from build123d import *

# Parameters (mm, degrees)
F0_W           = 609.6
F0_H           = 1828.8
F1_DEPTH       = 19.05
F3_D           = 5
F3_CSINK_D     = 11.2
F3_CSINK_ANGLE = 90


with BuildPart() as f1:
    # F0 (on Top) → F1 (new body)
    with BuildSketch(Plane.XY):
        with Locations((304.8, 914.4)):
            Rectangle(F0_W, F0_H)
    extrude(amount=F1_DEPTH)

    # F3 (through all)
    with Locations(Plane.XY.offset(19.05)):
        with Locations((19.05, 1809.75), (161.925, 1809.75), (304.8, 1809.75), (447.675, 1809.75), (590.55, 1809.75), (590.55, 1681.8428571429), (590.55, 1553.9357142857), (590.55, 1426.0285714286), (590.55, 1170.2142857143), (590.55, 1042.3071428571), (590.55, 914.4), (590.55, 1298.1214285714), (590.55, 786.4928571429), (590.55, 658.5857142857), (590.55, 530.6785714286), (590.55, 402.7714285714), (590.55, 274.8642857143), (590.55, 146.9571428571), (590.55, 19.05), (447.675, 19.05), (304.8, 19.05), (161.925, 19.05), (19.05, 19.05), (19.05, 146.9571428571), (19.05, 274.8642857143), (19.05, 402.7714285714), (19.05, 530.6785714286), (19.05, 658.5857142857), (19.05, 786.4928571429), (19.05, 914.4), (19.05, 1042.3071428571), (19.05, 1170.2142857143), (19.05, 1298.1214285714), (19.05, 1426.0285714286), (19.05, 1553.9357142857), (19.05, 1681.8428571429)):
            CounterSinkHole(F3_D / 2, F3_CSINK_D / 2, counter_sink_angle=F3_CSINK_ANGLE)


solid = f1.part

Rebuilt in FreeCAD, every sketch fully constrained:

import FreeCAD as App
import Part
import Sketcher
from FreeCAD import Vector
Q = App.Units.Quantity

doc = App.newDocument("Part")
params = doc.addObject("Spreadsheet::Sheet", "Params")
for row, (alias, value) in enumerate([
    ("sketch1_width", "24 in"),
    ("sketch1_height", "72 in"),
    ("pad1_length", "0.75 in"),
    ("hole_diameter", "5 mm"),
    ("hole_csink_diameter", "11.2 mm"),
], start=1):
    params.set(f"A{row}", alias)
    params.set(f"B{row}", "=" + value)
    params.setAlias(f"B{row}", alias)

body = doc.addObject("PartDesign::Body", "Body")

sketch1 = doc.addObject("Sketcher::SketchObject", "Sketch")
body.addObject(sketch1)
sketch1.AttachmentSupport = (doc.XY_Plane, [""])
sketch1.MapMode = "FlatFace"
sketch1.addGeometry(Part.LineSegment(Vector(0, 1829, 0), Vector(0, 0, 0)), False)
sketch1.addGeometry(Part.LineSegment(Vector(0, 0, 0), Vector(610, 0, 0)), False)
sketch1.addGeometry(Part.LineSegment(Vector(610, 0, 0), Vector(610, 1829, 0)), False)
sketch1.addGeometry(Part.LineSegment(Vector(610, 1829, 0), Vector(0, 1829, 0)), False)
sketch1.addConstraint(Sketcher.Constraint("Coincident", 0, 2, 1, 1))
sketch1.addConstraint(Sketcher.Constraint("Coincident", 1, 2, 2, 1))
sketch1.addConstraint(Sketcher.Constraint("Coincident", 2, 2, 3, 1))
sketch1.addConstraint(Sketcher.Constraint("Coincident", 3, 2, 0, 1))
sketch1.addConstraint(Sketcher.Constraint("Vertical", 0))
sketch1.addConstraint(Sketcher.Constraint("Horizontal", 1))
sketch1.addConstraint(Sketcher.Constraint("Vertical", 2))
sketch1.addConstraint(Sketcher.Constraint("Horizontal", 3))
sketch1.addConstraint(Sketcher.Constraint("Coincident", 0, 2, -1, 1))
sketch1.addConstraint(Sketcher.Constraint("DistanceX", 1, 1, 1, 2, Q("24 in")))
sketch1.addConstraint(Sketcher.Constraint("DistanceY", 0, 2, 0, 1, Q("72 in")))
sketch1.setExpression("Constraints[9]", "Params.sketch1_width")
sketch1.setExpression("Constraints[10]", "Params.sketch1_height")
pad1 = doc.addObject("PartDesign::Pad", "Pad")
body.addObject(pad1)
pad1.Profile = sketch1
pad1.setExpression("Length", "Params.pad1_length")

sketch2 = doc.addObject("Sketcher::SketchObject", "Sketch001")
body.addObject(sketch2)
sketch2.AttachmentSupport = (doc.XY_Plane, [""])
sketch2.MapMode = "FlatFace"
sketch2.AttachmentOffset = App.Placement(Vector(0, 0, 0.75 * 25.4), App.Rotation())
sketch2.addGeometry(Part.Circle(Vector(19.1, 1809.8, 0), Vector(0, 0, 1), 2.5), False)
sketch2.addGeometry(Part.Circle(Vector(161.9, 1809.8, 0), Vector(0, 0, 1), 2.5), False)
sketch2.addGeometry(Part.Circle(Vector(304.8, 1809.8, 0), Vector(0, 0, 1), 2.5), False)
sketch2.addGeometry(Part.Circle(Vector(447.7, 1809.8, 0), Vector(0, 0, 1), 2.5), False)
sketch2.addGeometry(Part.Circle(Vector(590.5, 1809.8, 0), Vector(0, 0, 1), 2.5), False)
sketch2.addGeometry(Part.Circle(Vector(590.5, 1681.8, 0), Vector(0, 0, 1), 2.5), False)
sketch2.addGeometry(Part.Circle(Vector(590.5, 1553.9, 0), Vector(0, 0, 1), 2.5), False)
sketch2.addGeometry(Part.Circle(Vector(590.5, 1426, 0), Vector(0, 0, 1), 2.5), False)
sketch2.addGeometry(Part.Circle(Vector(590.5, 1170.2, 0), Vector(0, 0, 1), 2.5), False)
sketch2.addGeometry(Part.Circle(Vector(590.5, 1042.3, 0), Vector(0, 0, 1), 2.5), False)
sketch2.addGeometry(Part.Circle(Vector(590.5, 914.4, 0), Vector(0, 0, 1), 2.5), False)
sketch2.addGeometry(Part.Circle(Vector(590.5, 1298.1, 0), Vector(0, 0, 1), 2.5), False)
sketch2.addGeometry(Part.Circle(Vector(590.5, 786.5, 0), Vector(0, 0, 1), 2.5), False)
sketch2.addGeometry(Part.Circle(Vector(590.5, 658.6, 0), Vector(0, 0, 1), 2.5), False)
sketch2.addGeometry(Part.Circle(Vector(590.5, 530.7, 0), Vector(0, 0, 1), 2.5), False)
sketch2.addGeometry(Part.Circle(Vector(590.5, 402.8, 0), Vector(0, 0, 1), 2.5), False)
sketch2.addGeometry(Part.Circle(Vector(590.5, 274.9, 0), Vector(0, 0, 1), 2.5), False)
sketch2.addGeometry(Part.Circle(Vector(590.5, 147, 0), Vector(0, 0, 1), 2.5), False)
sketch2.addGeometry(Part.Circle(Vector(590.5, 19.1, 0), Vector(0, 0, 1), 2.5), False)
sketch2.addGeometry(Part.Circle(Vector(447.7, 19.1, 0), Vector(0, 0, 1), 2.5), False)
sketch2.addGeometry(Part.Circle(Vector(304.8, 19.1, 0), Vector(0, 0, 1), 2.5), False)
sketch2.addGeometry(Part.Circle(Vector(161.9, 19.1, 0), Vector(0, 0, 1), 2.5), False)
sketch2.addGeometry(Part.Circle(Vector(19.1, 19.1, 0), Vector(0, 0, 1), 2.5), False)
sketch2.addGeometry(Part.Circle(Vector(19.1, 147, 0), Vector(0, 0, 1), 2.5), False)
sketch2.addGeometry(Part.Circle(Vector(19.1, 274.9, 0), Vector(0, 0, 1), 2.5), False)
sketch2.addGeometry(Part.Circle(Vector(19.1, 402.8, 0), Vector(0, 0, 1), 2.5), False)
sketch2.addGeometry(Part.Circle(Vector(19.1, 530.7, 0), Vector(0, 0, 1), 2.5), False)
sketch2.addGeometry(Part.Circle(Vector(19.1, 658.6, 0), Vector(0, 0, 1), 2.5), False)
sketch2.addGeometry(Part.Circle(Vector(19.1, 786.5, 0), Vector(0, 0, 1), 2.5), False)
sketch2.addGeometry(Part.Circle(Vector(19.1, 914.4, 0), Vector(0, 0, 1), 2.5), False)
sketch2.addGeometry(Part.Circle(Vector(19.1, 1042.3, 0), Vector(0, 0, 1), 2.5), False)
sketch2.addGeometry(Part.Circle(Vector(19.1, 1170.2, 0), Vector(0, 0, 1), 2.5), False)
sketch2.addGeometry(Part.Circle(Vector(19.1, 1298.1, 0), Vector(0, 0, 1), 2.5), False)
sketch2.addGeometry(Part.Circle(Vector(19.1, 1426, 0), Vector(0, 0, 1), 2.5), False)
sketch2.addGeometry(Part.Circle(Vector(19.1, 1553.9, 0), Vector(0, 0, 1), 2.5), False)
sketch2.addGeometry(Part.Circle(Vector(19.1, 1681.8, 0), Vector(0, 0, 1), 2.5), False)
sketch2.addConstraint(Sketcher.Constraint("Equal", 0, 1))
sketch2.addConstraint(Sketcher.Constraint("Equal", 1, 2))
sketch2.addConstraint(Sketcher.Constraint("Equal", 2, 3))
sketch2.addConstraint(Sketcher.Constraint("Equal", 3, 4))
sketch2.addConstraint(Sketcher.Constraint("Equal", 4, 5))
sketch2.addConstraint(Sketcher.Constraint("Equal", 5, 6))
sketch2.addConstraint(Sketcher.Constraint("Equal", 6, 7))
sketch2.addConstraint(Sketcher.Constraint("Equal", 7, 8))
sketch2.addConstraint(Sketcher.Constraint("Equal", 8, 9))
sketch2.addConstraint(Sketcher.Constraint("Equal", 9, 10))
sketch2.addConstraint(Sketcher.Constraint("Equal", 10, 11))
sketch2.addConstraint(Sketcher.Constraint("Equal", 11, 12))
sketch2.addConstraint(Sketcher.Constraint("Equal", 12, 13))
sketch2.addConstraint(Sketcher.Constraint("Equal", 13, 14))
sketch2.addConstraint(Sketcher.Constraint("Equal", 14, 15))
sketch2.addConstraint(Sketcher.Constraint("Equal", 15, 16))
sketch2.addConstraint(Sketcher.Constraint("Equal", 16, 17))
sketch2.addConstraint(Sketcher.Constraint("Equal", 17, 18))
sketch2.addConstraint(Sketcher.Constraint("Equal", 18, 19))
sketch2.addConstraint(Sketcher.Constraint("Equal", 19, 20))
sketch2.addConstraint(Sketcher.Constraint("Equal", 20, 21))
sketch2.addConstraint(Sketcher.Constraint("Equal", 21, 22))
sketch2.addConstraint(Sketcher.Constraint("Equal", 22, 23))
sketch2.addConstraint(Sketcher.Constraint("Equal", 23, 24))
sketch2.addConstraint(Sketcher.Constraint("Equal", 24, 25))
sketch2.addConstraint(Sketcher.Constraint("Equal", 25, 26))
sketch2.addConstraint(Sketcher.Constraint("Equal", 26, 27))
sketch2.addConstraint(Sketcher.Constraint("Equal", 27, 28))
sketch2.addConstraint(Sketcher.Constraint("Equal", 28, 29))
sketch2.addConstraint(Sketcher.Constraint("Equal", 29, 30))
sketch2.addConstraint(Sketcher.Constraint("Equal", 30, 31))
sketch2.addConstraint(Sketcher.Constraint("Equal", 31, 32))
sketch2.addConstraint(Sketcher.Constraint("Equal", 32, 33))
sketch2.addConstraint(Sketcher.Constraint("Equal", 33, 34))
sketch2.addConstraint(Sketcher.Constraint("Equal", 34, 35))
sketch2.addConstraint(Sketcher.Constraint("Horizontal", 0, 3, 1, 3))
sketch2.addConstraint(Sketcher.Constraint("Horizontal", 1, 3, 2, 3))
sketch2.addConstraint(Sketcher.Constraint("Horizontal", 2, 3, 3, 3))
sketch2.addConstraint(Sketcher.Constraint("Horizontal", 3, 3, 4, 3))
sketch2.addConstraint(Sketcher.Constraint("Horizontal", 18, 3, 19, 3))
sketch2.addConstraint(Sketcher.Constraint("Horizontal", 19, 3, 20, 3))
sketch2.addConstraint(Sketcher.Constraint("Horizontal", 20, 3, 21, 3))
sketch2.addConstraint(Sketcher.Constraint("Horizontal", 21, 3, 22, 3))
sketch2.addConstraint(Sketcher.Constraint("Horizontal", 17, 3, 23, 3))
sketch2.addConstraint(Sketcher.Constraint("Horizontal", 16, 3, 24, 3))
sketch2.addConstraint(Sketcher.Constraint("Horizontal", 15, 3, 25, 3))
sketch2.addConstraint(Sketcher.Constraint("Horizontal", 14, 3, 26, 3))
sketch2.addConstraint(Sketcher.Constraint("Horizontal", 13, 3, 27, 3))
sketch2.addConstraint(Sketcher.Constraint("Horizontal", 12, 3, 28, 3))
sketch2.addConstraint(Sketcher.Constraint("Horizontal", 10, 3, 29, 3))
sketch2.addConstraint(Sketcher.Constraint("Horizontal", 9, 3, 30, 3))
sketch2.addConstraint(Sketcher.Constraint("Horizontal", 8, 3, 31, 3))
sketch2.addConstraint(Sketcher.Constraint("Horizontal", 11, 3, 32, 3))
sketch2.addConstraint(Sketcher.Constraint("Horizontal", 7, 3, 33, 3))
sketch2.addConstraint(Sketcher.Constraint("Horizontal", 6, 3, 34, 3))
sketch2.addConstraint(Sketcher.Constraint("Horizontal", 5, 3, 35, 3))
sketch2.addConstraint(Sketcher.Constraint("Vertical", 4, 3, 5, 3))
sketch2.addConstraint(Sketcher.Constraint("Vertical", 5, 3, 6, 3))
sketch2.addConstraint(Sketcher.Constraint("Vertical", 6, 3, 7, 3))
sketch2.addConstraint(Sketcher.Constraint("Vertical", 7, 3, 8, 3))
sketch2.addConstraint(Sketcher.Constraint("Vertical", 8, 3, 9, 3))
sketch2.addConstraint(Sketcher.Constraint("Vertical", 9, 3, 10, 3))
sketch2.addConstraint(Sketcher.Constraint("Vertical", 10, 3, 11, 3))
sketch2.addConstraint(Sketcher.Constraint("Vertical", 11, 3, 12, 3))
sketch2.addConstraint(Sketcher.Constraint("Vertical", 12, 3, 13, 3))
sketch2.addConstraint(Sketcher.Constraint("Vertical", 13, 3, 14, 3))
sketch2.addConstraint(Sketcher.Constraint("Vertical", 14, 3, 15, 3))
sketch2.addConstraint(Sketcher.Constraint("Vertical", 15, 3, 16, 3))
sketch2.addConstraint(Sketcher.Constraint("Vertical", 16, 3, 17, 3))
sketch2.addConstraint(Sketcher.Constraint("Vertical", 17, 3, 18, 3))
sketch2.addConstraint(Sketcher.Constraint("Vertical", 3, 3, 19, 3))
sketch2.addConstraint(Sketcher.Constraint("Vertical", 2, 3, 20, 3))
sketch2.addConstraint(Sketcher.Constraint("Vertical", 1, 3, 21, 3))
sketch2.addConstraint(Sketcher.Constraint("Vertical", 0, 3, 22, 3))
sketch2.addConstraint(Sketcher.Constraint("Vertical", 22, 3, 23, 3))
sketch2.addConstraint(Sketcher.Constraint("Vertical", 23, 3, 24, 3))
sketch2.addConstraint(Sketcher.Constraint("Vertical", 24, 3, 25, 3))
sketch2.addConstraint(Sketcher.Constraint("Vertical", 25, 3, 26, 3))
sketch2.addConstraint(Sketcher.Constraint("Vertical", 26, 3, 27, 3))
sketch2.addConstraint(Sketcher.Constraint("Vertical", 27, 3, 28, 3))
sketch2.addConstraint(Sketcher.Constraint("Vertical", 28, 3, 29, 3))
sketch2.addConstraint(Sketcher.Constraint("Vertical", 29, 3, 30, 3))
sketch2.addConstraint(Sketcher.Constraint("Vertical", 30, 3, 31, 3))
sketch2.addConstraint(Sketcher.Constraint("Vertical", 31, 3, 32, 3))
sketch2.addConstraint(Sketcher.Constraint("Vertical", 32, 3, 33, 3))
sketch2.addConstraint(Sketcher.Constraint("Vertical", 33, 3, 34, 3))
sketch2.addConstraint(Sketcher.Constraint("Vertical", 34, 3, 35, 3))
sketch2.addConstraint(Sketcher.Constraint("DistanceX", -1, 1, 2, 3, Q("12 in")))
sketch2.addConstraint(Sketcher.Constraint("DistanceY", -1, 1, 10, 3, Q("36 in")))
sketch2.addConstraint(Sketcher.Constraint("DistanceX", 0, 3, 4, 3, Q("22.5 in")))
sketch2.addConstraint(Sketcher.Constraint("Diameter", 0, 5.0))
sketch2.addConstraint(Sketcher.Constraint("DistanceX", -1, 1, 0, 3, Q("0.75 in")))
sketch2.addConstraint(Sketcher.Constraint("DistanceY", -1, 1, 0, 3, Q("71.25 in")))
sketch2.addConstraint(Sketcher.Constraint("DistanceY", -1, 1, 18, 3, Q("0.75 in")))
sketch2.addConstraint(Sketcher.Constraint("DistanceX", 1, 3, 3, 3, Q("11.25 in")))
sketch2.addConstraint(Sketcher.Constraint("DistanceX", -1, 1, 1, 3, Q("6.375 in")))
sketch2.addConstraint(Sketcher.Constraint("DistanceY", -1, 1, 7, 3, 1426.028571))
sketch2.addConstraint(Sketcher.Constraint("DistanceY", -1, 1, 11, 3, 1298.121429))
sketch2.addConstraint(Sketcher.Constraint("DistanceY", -1, 1, 14, 3, 530.678571))
sketch2.addConstraint(Sketcher.Constraint("DistanceY", -1, 1, 15, 3, 402.771429))
sketch2.addConstraint(Sketcher.Constraint("DistanceY", 8, 3, 6, 3, 383.721429))
sketch2.addConstraint(Sketcher.Constraint("DistanceY", 8, 3, 5, 3, 511.628571))
sketch2.addConstraint(Sketcher.Constraint("DistanceY", 9, 3, 7, 3, 383.721429))
sketch2.addConstraint(Sketcher.Constraint("DistanceY", 9, 3, 6, 3, 511.628571))
sketch2.addConstraint(Sketcher.Constraint("DistanceY", 12, 3, 8, 3, 383.721429))
sketch2.addConstraint(Sketcher.Constraint("DistanceY", 13, 3, 9, 3, 383.721429))
sketch2.addConstraint(Sketcher.Constraint("DistanceY", 16, 3, 13, 3, 383.721429))
sketch2.addConstraint(Sketcher.Constraint("DistanceY", 17, 3, 14, 3, 383.721429))
doc.recompute()
hole = doc.addObject("PartDesign::Hole", "Hole")
body.addObject(hole)
hole.Profile = sketch2
hole.ThreadType = "None"
hole.setExpression("Diameter", "Params.hole_diameter")
hole.DepthType = "ThroughAll"
hole.HoleCutType = "Countersink"
hole.setExpression("HoleCutDiameter", "Params.hole_csink_diameter")
hole.HoleCutCountersinkAngle = 90

doc.recompute()
